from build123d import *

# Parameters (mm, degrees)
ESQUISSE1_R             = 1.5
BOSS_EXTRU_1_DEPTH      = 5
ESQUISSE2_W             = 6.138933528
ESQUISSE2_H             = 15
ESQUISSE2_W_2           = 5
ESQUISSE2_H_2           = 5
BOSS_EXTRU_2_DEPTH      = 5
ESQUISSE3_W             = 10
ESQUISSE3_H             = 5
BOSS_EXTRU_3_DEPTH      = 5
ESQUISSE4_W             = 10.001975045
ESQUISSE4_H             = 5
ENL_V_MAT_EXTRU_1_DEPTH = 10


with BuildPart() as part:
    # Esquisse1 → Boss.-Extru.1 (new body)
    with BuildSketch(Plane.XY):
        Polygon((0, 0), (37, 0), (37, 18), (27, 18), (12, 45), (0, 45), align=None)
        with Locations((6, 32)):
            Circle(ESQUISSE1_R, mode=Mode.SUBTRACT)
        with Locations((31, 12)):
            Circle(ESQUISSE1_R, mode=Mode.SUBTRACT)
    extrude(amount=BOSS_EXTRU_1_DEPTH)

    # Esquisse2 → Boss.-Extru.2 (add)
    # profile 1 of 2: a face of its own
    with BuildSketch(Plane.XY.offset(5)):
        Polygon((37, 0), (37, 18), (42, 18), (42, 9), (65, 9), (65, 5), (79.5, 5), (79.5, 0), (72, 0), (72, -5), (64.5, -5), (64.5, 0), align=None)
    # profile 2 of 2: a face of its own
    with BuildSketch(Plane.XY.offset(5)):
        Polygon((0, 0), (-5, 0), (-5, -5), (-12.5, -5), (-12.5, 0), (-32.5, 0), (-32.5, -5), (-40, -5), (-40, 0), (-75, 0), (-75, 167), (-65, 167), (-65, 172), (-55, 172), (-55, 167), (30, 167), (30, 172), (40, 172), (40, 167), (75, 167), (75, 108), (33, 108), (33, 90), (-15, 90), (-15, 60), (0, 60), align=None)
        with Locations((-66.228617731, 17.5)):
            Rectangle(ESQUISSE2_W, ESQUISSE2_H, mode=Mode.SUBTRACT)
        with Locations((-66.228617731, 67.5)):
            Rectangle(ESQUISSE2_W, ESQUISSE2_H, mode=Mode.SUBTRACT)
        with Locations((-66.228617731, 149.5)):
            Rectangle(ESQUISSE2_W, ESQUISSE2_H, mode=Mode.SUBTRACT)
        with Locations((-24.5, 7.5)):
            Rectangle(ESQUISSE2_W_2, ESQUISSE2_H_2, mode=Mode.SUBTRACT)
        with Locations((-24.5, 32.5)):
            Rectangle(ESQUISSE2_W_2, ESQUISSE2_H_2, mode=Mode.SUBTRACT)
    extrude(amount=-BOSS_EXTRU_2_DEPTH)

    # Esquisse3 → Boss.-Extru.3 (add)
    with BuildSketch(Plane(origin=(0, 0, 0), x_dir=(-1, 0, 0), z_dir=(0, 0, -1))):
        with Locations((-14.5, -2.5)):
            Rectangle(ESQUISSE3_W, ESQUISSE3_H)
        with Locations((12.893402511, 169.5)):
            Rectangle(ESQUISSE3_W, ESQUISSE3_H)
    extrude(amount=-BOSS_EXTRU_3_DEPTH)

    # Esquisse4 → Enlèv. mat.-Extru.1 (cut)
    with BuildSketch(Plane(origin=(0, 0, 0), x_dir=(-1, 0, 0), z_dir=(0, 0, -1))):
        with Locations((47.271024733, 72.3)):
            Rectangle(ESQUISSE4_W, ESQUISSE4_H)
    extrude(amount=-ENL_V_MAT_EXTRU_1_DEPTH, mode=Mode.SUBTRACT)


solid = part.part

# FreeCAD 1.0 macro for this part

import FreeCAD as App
import Part
import Sketcher
from FreeCAD import Vector


def add_polygon(sketch, points):
    """Adds a closed chain of lines whose ends are joined by coincident constraints."""
    first, n = sketch.GeometryCount, len(points)
    for a, b in zip(points, points[1:] + points[:1]):
        sketch.addGeometry(Part.LineSegment(App.Vector(*a, 0), App.Vector(*b, 0)), False)
    for i in range(n):
        sketch.addConstraint(Sketcher.Constraint("Coincident", first + i, 2, first + (i + 1) % n, 1))

doc = App.newDocument("Part")
body = doc.addObject("PartDesign::Body", "Body")

# Sketch on XY plane
sketch1 = body.newObject("Sketcher::SketchObject", "Sketch")
sketch1.AttachmentSupport = (doc.getObject("XY_Plane"), [""])
sketch1.MapMode = "FlatFace"
add_polygon(sketch1, [(0, 0), (37, 0), (37, 18), (27, 18), (12, 45), (0, 45)])  # lines 0-5
sketch1.addGeometry(Part.Circle(Vector(31, 12, 0), Vector(0, 0, 1), 1.5), False)  # 6
sketch1.addGeometry(Part.Circle(Vector(6, 32, 0), Vector(0, 0, 1), 1.5), False)  # 7
sketch1.addConstraint([
    Sketcher.Constraint("Horizontal", 0),
    Sketcher.Constraint("Vertical", 1),
    Sketcher.Constraint("Horizontal", 2),
    Sketcher.Constraint("Horizontal", 4),
    Sketcher.Constraint("Vertical", 5),
    Sketcher.Constraint("Coincident", 5, 2, -1, 1),
    Sketcher.Constraint("Equal", 6, 7),
    Sketcher.Constraint("Diameter", 6, 3.0),
    Sketcher.Constraint("DistanceX", 0, 1, 0, 2, 37.0),
    Sketcher.Constraint("DistanceX", 2, 2, 2, 1, 10.0),
    Sketcher.Constraint("DistanceX", 4, 2, 4, 1, 12.0),
    Sketcher.Constraint("DistanceY", 1, 1, 1, 2, 18.0),
    Sketcher.Constraint("DistanceY", 5, 2, 5, 1, 45.0),
    Sketcher.Constraint("DistanceX", -1, 1, 6, 3, 31.0),
    Sketcher.Constraint("DistanceY", -1, 1, 6, 3, 12.0),
    Sketcher.Constraint("DistanceX", -1, 1, 7, 3, 6.0),
    Sketcher.Constraint("DistanceY", -1, 1, 7, 3, 32.0),
])
pad1 = body.newObject("PartDesign::Pad", "Pad")
pad1.Profile = sketch1
pad1.Length = 5

# Sketch on XY plane
sketch2 = body.newObject("Sketcher::SketchObject", "Sketch001")
sketch2.AttachmentSupport = (doc.getObject("XY_Plane"), [""])
sketch2.MapMode = "FlatFace"
sketch2.AttachmentOffset = App.Placement(Vector(0, 0, 5), App.Rotation())
add_polygon(sketch2, [(37, 18), (37, 0), (64.5, 0), (64.5, -5), (72, -5), (72, 0), (79.5, 0), (79.5, 5), (65, 5), (65, 9), (42, 9), (42, 18)])  # lines 0-11
add_polygon(sketch2, [(-5, 0), (0, 0), (0, 60), (-15, 60), (-15, 90), (33, 90), (33, 108), (75, 108), (75, 167), (40, 167), (40, 172), (30, 172), (30, 167), (-55, 167), (-55, 172), (-65, 172), (-65, 167), (-75, 167), (-75, 0), (-40, 0), (-40, -5), (-32.5, -5), (-32.5, 0), (-12.5, 0), (-12.5, -5), (-5, -5)])  # lines 12-37
add_polygon(sketch2, [(-27, 5), (-27, 10), (-22, 10), (-22, 5)])  # lines 38-41
add_polygon(sketch2, [(-27, 30), (-27, 35), (-22, 35), (-22, 30)])  # lines 42-45
add_polygon(sketch2, [(-69.3, 10), (-69.3, 25), (-63.2, 25), (-63.2, 10)])  # lines 46-49
add_polygon(sketch2, [(-69.3, 60), (-69.3, 75), (-63.2, 75), (-63.2, 60)])  # lines 50-53
add_polygon(sketch2, [(-69.3, 142), (-69.3, 157), (-63.2, 157), (-63.2, 142)])  # lines 54-57
sketch2.addConstraint([
    Sketcher.Constraint("Vertical", 0),
    Sketcher.Constraint("Horizontal", 1),
    Sketcher.Constraint("Vertical", 2),
    Sketcher.Constraint("Horizontal", 3),
    Sketcher.Constraint("Vertical", 4),
    Sketcher.Constraint("Horizontal", 5),
    Sketcher.Constraint("Vertical", 6),
    Sketcher.Constraint("Horizontal", 7),
    Sketcher.Constraint("Vertical", 8),
    Sketcher.Constraint("Horizontal", 9),
    Sketcher.Constraint("Vertical", 10),
    Sketcher.Constraint("Horizontal", 11),
    Sketcher.Constraint("Horizontal", 12),
    Sketcher.Constraint("Vertical", 13),
    Sketcher.Constraint("Horizontal", 14),
    Sketcher.Constraint("Vertical", 15),
    Sketcher.Constraint("Horizontal", 16),
    Sketcher.Constraint("Vertical", 17),
    Sketcher.Constraint("Horizontal", 18),
    Sketcher.Constraint("Vertical", 19),
    Sketcher.Constraint("Horizontal", 20),
    Sketcher.Constraint("Vertical", 21),
    Sketcher.Constraint("Horizontal", 22),
    Sketcher.Constraint("Vertical", 23),
    Sketcher.Constraint("Horizontal", 24),
    Sketcher.Constraint("Vertical", 25),
    Sketcher.Constraint("Horizontal", 26),
    Sketcher.Constraint("Vertical", 27),
    Sketcher.Constraint("Horizontal", 28),
    Sketcher.Constraint("Vertical", 29),
    Sketcher.Constraint("Horizontal", 30),
    Sketcher.Constraint("Vertical", 31),
    Sketcher.Constraint("Horizontal", 32),
    Sketcher.Constraint("Vertical", 33),
    Sketcher.Constraint("Horizontal", 34),
    Sketcher.Constraint("Vertical", 35),
    Sketcher.Constraint("Horizontal", 36),
    Sketcher.Constraint("Vertical", 37),
    Sketcher.Constraint("Vertical", 38),
    Sketcher.Constraint("Horizontal", 39),
    Sketcher.Constraint("Vertical", 40),
    Sketcher.Constraint("Horizontal", 41),
    Sketcher.Constraint("Vertical", 42),
    Sketcher.Constraint("Horizontal", 43),
    Sketcher.Constraint("Vertical", 44),
    Sketcher.Constraint("Horizontal", 45),
    Sketcher.Constraint("Vertical", 46),
    Sketcher.Constraint("Horizontal", 47),
    Sketcher.Constraint("Vertical", 48),
    Sketcher.Constraint("Horizontal", 49),
    Sketcher.Constraint("Vertical", 50),
    Sketcher.Constraint("Horizontal", 51),
    Sketcher.Constraint("Vertical", 52),
    Sketcher.Constraint("Horizontal", 53),
    Sketcher.Constraint("Vertical", 54),
    Sketcher.Constraint("Horizontal", 55),
    Sketcher.Constraint("Vertical", 56),
    Sketcher.Constraint("Horizontal", 57),
    Sketcher.Constraint("Coincident", 12, 2, -1, 1),
    Sketcher.Constraint("Symmetric", 19, 2, 28, 2, -2),
    Sketcher.Constraint("PointOnObject", 0, 2, -1),
    Sketcher.Constraint("PointOnObject", 4, 2, -1),
    Sketcher.Constraint("PointOnObject", 29, 2, -1),
    Sketcher.Constraint("PointOnObject", 33, 2, -1),
    Sketcher.Constraint("Horizontal", 20, 2, 23, 2),
    Sketcher.Constraint("Horizontal", 22, 2, 25, 2),
    Sketcher.Constraint("Horizontal", 3, 2, 31, 2),
    Sketcher.Constraint("Horizontal", 32, 2, 35, 2),
    Sketcher.Constraint("Horizontal", 7, 2, 40, 2),
    Sketcher.Constraint("Horizontal", 39, 2, 48, 2),
    Sketcher.Constraint("Horizontal", 14, 2, 52, 2),
    Sketcher.Constraint("Vertical", 41, 2, 42, 2),
    Sketcher.Constraint("Vertical", 40, 2, 43, 2),
    Sketcher.Constraint("Vertical", 49, 2, 50, 2),
    Sketcher.Constraint("Vertical", 48, 2, 51, 2),
    Sketcher.Constraint("Vertical", 53, 2, 54, 2),
    Sketcher.Constraint("Vertical", 52, 2, 55, 2),
    Sketcher.Constraint("Equal", 3, 5),
    Sketcher.Constraint("Equal", 11, 12),
    Sketcher.Constraint("Equal", 22, 26),
    Sketcher.Constraint("Equal", 26, 28),
    Sketcher.Constraint("Equal", 20, 30),
    Sketcher.Constraint("Equal", 5, 32),
    Sketcher.Constraint("Equal", 32, 36),
    Sketcher.Constraint("Equal", 12, 39),
    Sketcher.Constraint("Equal", 45, 2),
    Sketcher.Constraint("Equal", 4, 6),
    Sketcher.Constraint("Equal", 0, 17),
    Sketcher.Constraint("Equal", 6, 21),
    Sketcher.Constraint("Equal", 37, 38),
    Sketcher.Constraint("Equal", 40, 42),
    Sketcher.Constraint("Equal", 14, 46),
    Sketcher.Constraint("Equal", 48, 50),
    Sketcher.Constraint("Equal", 52, 54),
    Sketcher.Constraint("DistanceX", 9, 2, 9, 1, 23.0),
    Sketcher.Constraint("DistanceX", 11, 2, 11, 1, 5.0),
    Sketcher.Constraint("DistanceX", 14, 2, 14, 1, 15.0),
    Sketcher.Constraint("DistanceX", 16, 1, 16, 2, 48.0),
    Sketcher.Constraint("DistanceX", 18, 1, 18, 2, 42.0),
    Sketcher.Constraint("DistanceX", 20, 2, 20, 1, 35.0),
    Sketcher.Constraint("DistanceX", 22, 2, 22, 1, 10.0),
    Sketcher.Constraint("DistanceX", 34, 1, 34, 2, 20.0),
    Sketcher.Constraint("DistanceY", 0, 2, 0, 1, 18.0),
    Sketcher.Constraint("DistanceY", 8, 1, 8, 2, 4.0),
    Sketcher.Constraint("DistanceY", 13, 1, 13, 2, 60.0),
    Sketcher.Constraint("DistanceY", 15, 1, 15, 2, 30.0),
    Sketcher.Constraint("DistanceY", 19, 1, 19, 2, 59.0),
    Sketcher.Constraint("DistanceX", 1, 1, 1, 2, 27.5),
    Sketcher.Constraint("DistanceX", -1, 1, 0, 2, 37.0),
    Sketcher.Constraint("DistanceX", 38, 2, -1, 1, 27.0),
    Sketcher.Constraint("DistanceY", -1, 1, 42, 2, 35.0),
    Sketcher.Constraint("DistanceY", -1, 1, 54, 2, 157.0),
    Sketcher.Constraint("DistanceX", 47, 1, 47, 2, 6.138934),
    Sketcher.Constraint("DistanceX", 47, 2, -1, 1, 63.159151),
])
pad2 = body.newObject("PartDesign::Pad", "Pad001")
pad2.Profile = sketch2
pad2.Length = 5
pad2.Reversed = True

# Sketch on XY plane
sketch3 = body.newObject("Sketcher::SketchObject", "Sketch002")
sketch3.AttachmentSupport = (doc.getObject("XY_Plane"), [""])
sketch3.MapMode = "FlatFace"
add_polygon(sketch3, [(20, 0), (20, -5), (10, -5), (10, 0)])  # lines 0-3
add_polygon(sketch3, [(-8, 172), (-8, 167), (-18, 167), (-18, 172)])  # lines 4-7
sketch3.addConstraint([
    Sketcher.Constraint("Vertical", 0),
    Sketcher.Constraint("Horizontal", 1),
    Sketcher.Constraint("Vertical", 2),
    Sketcher.Constraint("Horizontal", 3),
    Sketcher.Constraint("Vertical", 4),
    Sketcher.Constraint("Horizontal", 5),
    Sketcher.Constraint("Vertical", 6),
    Sketcher.Constraint("Horizontal", 7),
    Sketcher.Constraint("PointOnObject", 2, 2, -1),
    Sketcher.Constraint("Equal", 3, 5),
    Sketcher.Constraint("Equal", 2, 4),
    Sketcher.Constraint("DistanceX", 1, 2, 1, 1, 10.0),
    Sketcher.Constraint("DistanceY", 0, 2, 0, 1, 5.0),
    Sketcher.Constraint("DistanceY", -1, 1, 4, 2, 167.0),
    Sketcher.Constraint("DistanceX", -1, 1, 0, 2, 19.5),
    Sketcher.Constraint("DistanceX", 4, 2, -1, 1, 7.893403),
])
pad3 = body.newObject("PartDesign::Pad", "Pad002")
pad3.Profile = sketch3
pad3.Length = 5

# Sketch on XY plane
sketch4 = body.newObject("Sketcher::SketchObject", "Sketch003")
sketch4.AttachmentSupport = (doc.getObject("XY_Plane"), [""])
sketch4.MapMode = "FlatFace"
add_polygon(sketch4, [(-42, 75), (-42, 70), (-52, 70), (-52, 75)])  # lines 0-3
sketch4.addConstraint([
    Sketcher.Constraint("Vertical", 0),
    Sketcher.Constraint("Horizontal", 1),
    Sketcher.Constraint("Vertical", 2),
    Sketcher.Constraint("Horizontal", 3),
    Sketcher.Constraint("DistanceY", 0, 2, 0, 1, 5.0),
    Sketcher.Constraint("DistanceY", -1, 1, 0, 2, 69.8),
    Sketcher.Constraint("DistanceX", 1, 2, 1, 1, 10.001975),
    Sketcher.Constraint("DistanceX", 0, 2, -1, 1, 42.270037),
])
pocket1 = body.newObject("PartDesign::Pocket", "Pocket")
pocket1.Profile = sketch4
pocket1.Length = 10
pocket1.Reversed = True

doc.recompute()
